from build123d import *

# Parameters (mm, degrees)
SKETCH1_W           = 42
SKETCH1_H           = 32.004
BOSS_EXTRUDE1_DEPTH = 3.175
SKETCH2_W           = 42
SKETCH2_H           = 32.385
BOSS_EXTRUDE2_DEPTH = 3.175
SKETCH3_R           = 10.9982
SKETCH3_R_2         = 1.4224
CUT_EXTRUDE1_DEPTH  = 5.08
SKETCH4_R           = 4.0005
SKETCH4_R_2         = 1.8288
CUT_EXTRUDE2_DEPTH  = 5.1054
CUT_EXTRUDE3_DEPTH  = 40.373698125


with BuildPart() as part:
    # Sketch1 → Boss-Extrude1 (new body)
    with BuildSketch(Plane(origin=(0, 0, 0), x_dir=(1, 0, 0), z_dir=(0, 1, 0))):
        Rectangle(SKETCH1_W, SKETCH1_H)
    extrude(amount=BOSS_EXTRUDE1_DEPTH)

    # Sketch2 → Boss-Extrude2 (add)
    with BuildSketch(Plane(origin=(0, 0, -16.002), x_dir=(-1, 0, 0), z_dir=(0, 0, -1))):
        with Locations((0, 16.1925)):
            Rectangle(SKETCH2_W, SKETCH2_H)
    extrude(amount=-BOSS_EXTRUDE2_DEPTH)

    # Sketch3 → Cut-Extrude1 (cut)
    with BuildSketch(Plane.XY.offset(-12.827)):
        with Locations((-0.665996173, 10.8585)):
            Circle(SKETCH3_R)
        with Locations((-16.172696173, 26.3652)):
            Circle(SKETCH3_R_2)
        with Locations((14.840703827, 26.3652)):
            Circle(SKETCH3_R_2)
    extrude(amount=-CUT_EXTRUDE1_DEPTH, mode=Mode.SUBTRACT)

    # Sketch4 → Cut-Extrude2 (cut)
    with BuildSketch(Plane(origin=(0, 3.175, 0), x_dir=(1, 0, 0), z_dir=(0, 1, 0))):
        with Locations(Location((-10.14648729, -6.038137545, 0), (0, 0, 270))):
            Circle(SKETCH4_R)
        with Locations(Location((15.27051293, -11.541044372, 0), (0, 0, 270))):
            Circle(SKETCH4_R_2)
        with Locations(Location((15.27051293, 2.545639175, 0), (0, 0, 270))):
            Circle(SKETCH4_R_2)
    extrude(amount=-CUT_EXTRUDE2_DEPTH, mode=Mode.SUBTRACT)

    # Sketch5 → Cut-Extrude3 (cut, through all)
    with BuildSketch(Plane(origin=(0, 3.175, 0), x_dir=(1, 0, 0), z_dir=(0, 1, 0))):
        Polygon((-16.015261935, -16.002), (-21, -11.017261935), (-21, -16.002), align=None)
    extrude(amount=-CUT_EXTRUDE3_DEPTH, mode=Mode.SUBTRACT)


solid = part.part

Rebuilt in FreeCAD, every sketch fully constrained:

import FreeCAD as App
import Part
import Sketcher

V = App.Vector
Q = App.Units.Quantity


def add_polygon(sketch, points):
    """Adds a closed chain of lines whose ends are joined by coincident constraints."""
    first, n = sketch.GeometryCount, len(points)
    for a, b in zip(points, points[1:] + points[:1]):
        sketch.addGeometry(Part.LineSegment(App.Vector(*a, 0), App.Vector(*b, 0)), False)
    for i in range(n):
        sketch.addConstraint(Sketcher.Constraint("Coincident", first + i, 2, first + (i + 1) % n, 1))

doc = App.newDocument("Part")
body = doc.addObject("PartDesign::Body", "Body")

# Sketch on XZ plane
sketch1 = body.newObject("Sketcher::SketchObject", "Sketch")
sketch1.AttachmentSupport = (doc.getObject("XZ_Plane"), [""])
sketch1.MapMode = "FlatFace"
add_polygon(sketch1, [(-21, -16), (-21, 16), (21, 16), (21, -16)])  # lines 0-3
sketch1.addConstraint(Sketcher.Constraint("Vertical", 0))
sketch1.addConstraint(Sketcher.Constraint("Horizontal", 1))
sketch1.addConstraint(Sketcher.Constraint("Vertical", 2))
sketch1.addConstraint(Sketcher.Constraint("Horizontal", 3))
sketch1.addConstraint(Sketcher.Constraint("Symmetric", 0, 2, 2, 2, -1, 1))
sketch1.addConstraint(Sketcher.Constraint("DistanceY", 0, 1, 0, 2, Q("1.26 in")))
sketch1.addConstraint(Sketcher.Constraint("DistanceX", 1, 1, 1, 2, Q("42 mm")))
pad1 = body.newObject("PartDesign::Pad", "Pad")
pad1.Profile = sketch1
pad1.Length = Q("0.125 in")
pad1.Reversed = True

# Sketch on XY plane
sketch2 = body.newObject("Sketcher::SketchObject", "Sketch001")
sketch2.AttachmentSupport = (doc.getObject("XY_Plane"), [""])
sketch2.MapMode = "FlatFace"
sketch2.AttachmentOffset = App.Placement(V(0, 0, -0.63 * 25.4), App.Rotation())
add_polygon(sketch2, [(21, 32), (21, 0), (-21, 0), (-21, 32)])  # lines 0-3
sketch2.addConstraint(Sketcher.Constraint("Vertical", 0))
sketch2.addConstraint(Sketcher.Constraint("Horizontal", 1))
sketch2.addConstraint(Sketcher.Constraint("Vertical", 2))
sketch2.addConstraint(Sketcher.Constraint("Horizontal", 3))
sketch2.addConstraint(Sketcher.Constraint("Symmetric", 0, 2, 1, 2, -1, 1))
sketch2.addConstraint(Sketcher.Constraint("DistanceY", 0, 2, 0, 1, Q("1.275 in")))
sketch2.addConstraint(Sketcher.Constraint("DistanceX", 1, 2, 1, 1, Q("42 mm")))
pad2 = body.newObject("PartDesign::Pad", "Pad001")
pad2.Profile = sketch2
pad2.Length = Q("0.125 in")

# Sketch on XY plane
sketch3 = body.newObject("Sketcher::SketchObject", "Sketch002")
sketch3.AttachmentSupport = (doc.getObject("XY_Plane"), [""])
sketch3.MapMode = "FlatFace"
sketch3.AttachmentOffset = App.Placement(V(0, 0, -0.505 * 25.4), App.Rotation())
sketch3.addGeometry(Part.Circle(V(-0.7, 10.9, 0), V(0, 0, 1), 11), False)
sketch3.addGeometry(Part.Circle(V(-16.2, 26.4, 0), V(0, 0, 1), 1.4), False)
sketch3.addGeometry(Part.Circle(V(14.8, 26.4, 0), V(0, 0, 1), 1.4), False)
sketch3.addConstraint(Sketcher.Constraint("Equal", 1, 2))
sketch3.addConstraint(Sketcher.Constraint("Horizontal", 1, 3, 2, 3))
sketch3.addConstraint(Sketcher.Constraint("Diameter", 0, Q("0.866 in")))
sketch3.addConstraint(Sketcher.Constraint("Diameter", 1, Q("0.112 in")))
sketch3.addConstraint(Sketcher.Constraint("DistanceY", -1, 1, 1, 3, Q("1.038 in")))
sketch3.addConstraint(Sketcher.Constraint("DistanceX", 1, 3, 2, 3, Q("1.221 in")))
sketch3.addConstraint(Sketcher.Constraint("DistanceY", -1, 1, 0, 3, Q("0.4275 in")))
sketch3.addConstraint(Sketcher.Constraint("DistanceX", 1, 3, 0, 3, Q("0.6105 in")))
sketch3.addConstraint(Sketcher.Constraint("DistanceX", 0, 3, -1, 1, Q("0.665996 mm")))
pocket1 = body.newObject("PartDesign::Pocket", "Pocket")
pocket1.Profile = sketch3
pocket1.Length = Q("0.2 in")

# Sketch on XZ plane
sketch4 = body.newObject("Sketcher::SketchObject", "Sketch003")
sketch4.AttachmentSupport = (doc.getObject("XZ_Plane"), [""])
sketch4.MapMode = "FlatFace"
sketch4.AttachmentOffset = App.Placement(V(0, 0, -0.125 * 25.4), App.Rotation())
sketch4.addGeometry(Part.Circle(V(-10.1, 6, 0), V(0, 0, 1), 4), False)
sketch4.addGeometry(Part.Circle(V(15.3, 11.5, 0), V(0, 0, 1), 1.8), False)
sketch4.addGeometry(Part.Circle(V(15.3, -2.5, 0), V(0, 0, 1), 1.8), False)
sketch4.addConstraint(Sketcher.Constraint("Equal", 1, 2))
sketch4.addConstraint(Sketcher.Constraint("Vertical", 1, 3, 2, 3))
sketch4.addConstraint(Sketcher.Constraint("Diameter", 0, Q("0.315 in")))
sketch4.addConstraint(Sketcher.Constraint("Diameter", 1, Q("0.144 in")))
sketch4.addConstraint(Sketcher.Constraint("DistanceX", 0, 3, 1, 3, Q("25.417 mm")))
sketch4.addConstraint(Sketcher.Constraint("DistanceY", 2, 3, -1, 1, Q("2.545639 mm")))
sketch4.addConstraint(Sketcher.Constraint("DistanceX", 0, 3, -1, 1, Q("10.146487 mm")))
sketch4.addConstraint(Sketcher.Constraint("DistanceY", -1, 1, 0, 3, Q("6.038138 mm")))
sketch4.addConstraint(Sketcher.Constraint("DistanceY", -1, 1, 1, 3, Q("11.541044 mm")))
pocket2 = body.newObject("PartDesign::Pocket", "Pocket001")
pocket2.Profile = sketch4
pocket2.Length = Q("0.201 in")
pocket2.Reversed = True

# Sketch on XZ plane
sketch5 = body.newObject("Sketcher::SketchObject", "Sketch004")
sketch5.AttachmentSupport = (doc.getObject("XZ_Plane"), [""])
sketch5.MapMode = "FlatFace"
sketch5.AttachmentOffset = App.Placement(V(0, 0, -0.125 * 25.4), App.Rotation())
add_polygon(sketch5, [(-16, 16), (-21, 11), (-21, 16)])  # lines 0-2
sketch5.addConstraint(Sketcher.Constraint("Vertical", 1))
sketch5.addConstraint(Sketcher.Constraint("Horizontal", 2))
sketch5.addConstraint(Sketcher.Constraint("Equal", 2, 1))
sketch5.addConstraint(Sketcher.Constraint("DistanceY", -1, 1, 1, 2, Q("0.63 in")))
sketch5.addConstraint(Sketcher.Constraint("DistanceX", 2, 1, 2, 2, Q("4.984738 mm")))
sketch5.addConstraint(Sketcher.Constraint("DistanceX", 0, 2, -1, 1, Q("21 mm")))
pocket3 = body.newObject("PartDesign::Pocket", "Pocket002")
pocket3.Profile = sketch5
pocket3.Type = "ThroughAll"
pocket3.Reversed = True

doc.recompute()
